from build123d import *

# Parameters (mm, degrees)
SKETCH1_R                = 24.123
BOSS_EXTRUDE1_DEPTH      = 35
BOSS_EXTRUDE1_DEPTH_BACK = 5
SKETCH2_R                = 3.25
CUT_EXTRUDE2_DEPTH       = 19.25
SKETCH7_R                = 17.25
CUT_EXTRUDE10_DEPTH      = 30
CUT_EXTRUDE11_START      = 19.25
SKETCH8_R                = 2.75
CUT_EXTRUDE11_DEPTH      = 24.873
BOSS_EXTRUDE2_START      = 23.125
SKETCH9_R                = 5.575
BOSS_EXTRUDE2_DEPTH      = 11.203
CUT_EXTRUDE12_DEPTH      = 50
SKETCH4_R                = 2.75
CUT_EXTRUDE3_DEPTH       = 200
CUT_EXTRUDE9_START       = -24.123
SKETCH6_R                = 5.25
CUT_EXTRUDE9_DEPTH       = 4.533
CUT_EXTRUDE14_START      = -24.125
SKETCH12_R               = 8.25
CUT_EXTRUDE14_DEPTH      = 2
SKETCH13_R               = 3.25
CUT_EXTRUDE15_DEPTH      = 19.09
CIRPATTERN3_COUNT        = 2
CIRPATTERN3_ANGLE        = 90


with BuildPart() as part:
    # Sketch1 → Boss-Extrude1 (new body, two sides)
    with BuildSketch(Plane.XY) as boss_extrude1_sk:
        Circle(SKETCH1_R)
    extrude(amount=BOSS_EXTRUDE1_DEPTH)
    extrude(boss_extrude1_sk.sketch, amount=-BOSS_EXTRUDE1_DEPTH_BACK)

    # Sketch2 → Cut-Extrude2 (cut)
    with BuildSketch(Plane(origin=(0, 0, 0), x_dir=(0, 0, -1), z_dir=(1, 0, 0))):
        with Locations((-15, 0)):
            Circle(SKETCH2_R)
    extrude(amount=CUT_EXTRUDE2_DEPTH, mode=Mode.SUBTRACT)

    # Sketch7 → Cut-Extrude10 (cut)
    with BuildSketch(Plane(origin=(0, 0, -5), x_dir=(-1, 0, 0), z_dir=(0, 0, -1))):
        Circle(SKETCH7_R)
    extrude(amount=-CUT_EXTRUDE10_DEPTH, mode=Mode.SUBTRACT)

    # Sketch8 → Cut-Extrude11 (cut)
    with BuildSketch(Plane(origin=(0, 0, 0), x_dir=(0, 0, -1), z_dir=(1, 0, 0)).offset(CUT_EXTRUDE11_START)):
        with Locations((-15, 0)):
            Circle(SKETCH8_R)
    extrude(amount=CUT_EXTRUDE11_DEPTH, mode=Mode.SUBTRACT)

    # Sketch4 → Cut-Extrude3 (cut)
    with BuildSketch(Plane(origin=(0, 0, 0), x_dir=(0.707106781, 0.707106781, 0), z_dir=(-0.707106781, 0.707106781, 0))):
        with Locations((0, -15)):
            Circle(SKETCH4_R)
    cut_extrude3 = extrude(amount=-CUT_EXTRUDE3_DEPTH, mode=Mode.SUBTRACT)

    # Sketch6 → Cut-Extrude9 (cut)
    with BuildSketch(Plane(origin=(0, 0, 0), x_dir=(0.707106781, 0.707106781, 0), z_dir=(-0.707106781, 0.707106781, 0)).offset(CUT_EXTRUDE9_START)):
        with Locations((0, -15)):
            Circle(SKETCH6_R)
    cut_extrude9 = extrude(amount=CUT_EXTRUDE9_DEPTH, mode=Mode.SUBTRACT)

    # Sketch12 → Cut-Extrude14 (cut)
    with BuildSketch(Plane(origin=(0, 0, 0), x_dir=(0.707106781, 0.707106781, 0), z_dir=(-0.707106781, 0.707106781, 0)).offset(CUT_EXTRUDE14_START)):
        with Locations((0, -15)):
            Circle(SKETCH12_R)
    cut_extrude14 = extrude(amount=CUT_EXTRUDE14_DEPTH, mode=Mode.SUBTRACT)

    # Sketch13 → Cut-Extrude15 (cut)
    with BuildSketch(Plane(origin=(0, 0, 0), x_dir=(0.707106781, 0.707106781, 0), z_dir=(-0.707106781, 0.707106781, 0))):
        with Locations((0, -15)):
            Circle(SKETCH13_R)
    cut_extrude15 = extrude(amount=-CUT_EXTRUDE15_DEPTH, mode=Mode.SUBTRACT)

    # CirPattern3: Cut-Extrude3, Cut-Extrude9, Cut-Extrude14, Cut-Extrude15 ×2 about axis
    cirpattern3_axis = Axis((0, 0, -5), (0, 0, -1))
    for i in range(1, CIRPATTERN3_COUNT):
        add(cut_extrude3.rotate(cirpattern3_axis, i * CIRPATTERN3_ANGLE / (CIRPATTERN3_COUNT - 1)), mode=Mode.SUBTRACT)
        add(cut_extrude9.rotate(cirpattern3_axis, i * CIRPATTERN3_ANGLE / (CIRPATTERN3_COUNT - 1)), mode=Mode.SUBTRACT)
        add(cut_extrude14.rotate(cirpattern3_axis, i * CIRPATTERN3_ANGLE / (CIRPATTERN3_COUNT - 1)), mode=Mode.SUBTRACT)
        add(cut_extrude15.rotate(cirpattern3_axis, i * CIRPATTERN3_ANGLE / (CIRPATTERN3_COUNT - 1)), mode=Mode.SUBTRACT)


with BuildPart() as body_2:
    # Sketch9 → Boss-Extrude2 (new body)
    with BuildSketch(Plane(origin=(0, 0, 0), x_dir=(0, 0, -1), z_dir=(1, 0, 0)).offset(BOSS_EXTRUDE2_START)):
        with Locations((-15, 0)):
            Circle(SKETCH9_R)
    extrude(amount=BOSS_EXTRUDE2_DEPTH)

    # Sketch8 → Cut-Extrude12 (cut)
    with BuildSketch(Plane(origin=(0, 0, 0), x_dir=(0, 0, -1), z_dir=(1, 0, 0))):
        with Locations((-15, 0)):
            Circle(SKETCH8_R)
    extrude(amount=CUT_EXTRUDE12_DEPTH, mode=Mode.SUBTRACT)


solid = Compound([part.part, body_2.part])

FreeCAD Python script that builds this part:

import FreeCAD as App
import Part
import Sketcher

V = App.Vector
Q = App.Units.Quantity

doc = App.newDocument("Part")
body = doc.addObject("PartDesign::Body", "Body")

# Sketch on XY plane
sketch1 = body.newObject("Sketcher::SketchObject", "Sketch")
sketch1.AttachmentSupport = (doc.getObject("XY_Plane"), [""])
sketch1.MapMode = "FlatFace"
sketch1.addGeometry(Part.Circle(V(0, 0, 0), V(0, 0, 1), 24.123), False)
sketch1.addConstraint([
    Sketcher.Constraint("Coincident", 0, 3, -1, 1),
    Sketcher.Constraint("Diameter", 0, Q("48.246 mm")),
])
pad1 = body.newObject("PartDesign::Pad", "Pad")
pad1.Profile = sketch1
pad1.Type = "TwoLengths"
pad1.Length = 35
pad1.Length2 = 5

# Sketch on YZ plane
sketch2 = body.newObject("Sketcher::SketchObject", "Sketch001")
sketch2.AttachmentSupport = (doc.getObject("YZ_Plane"), [""])
sketch2.MapMode = "FlatFace"
sketch2.addGeometry(Part.Circle(V(0, 15, 0), V(0, 0, 1), 3.25), False)
sketch2.addConstraint([
    Sketcher.Constraint("PointOnObject", 0, 3, -2),
    Sketcher.Constraint("Diameter", 0, Q("6.5 mm")),
    Sketcher.Constraint("DistanceY", -1, 1, 0, 3, Q("15 mm")),
])
pocket1 = body.newObject("PartDesign::Pocket", "Pocket")
pocket1.Profile = sketch2
pocket1.Length = 19.25
pocket1.Reversed = True

# Sketch on XY plane
sketch3 = body.newObject("Sketcher::SketchObject", "Sketch002")
sketch3.AttachmentSupport = (doc.getObject("XY_Plane"), [""])
sketch3.MapMode = "FlatFace"
sketch3.AttachmentOffset = App.Placement(V(0, 0, -5), App.Rotation())
sketch3.addGeometry(Part.Circle(V(0, 0, 0), V(0, 0, 1), 17.25), False)
sketch3.addConstraint([
    Sketcher.Constraint("Coincident", 0, 3, -1, 1),
    Sketcher.Constraint("Diameter", 0, Q("34.5 mm")),
])
pocket2 = body.newObject("PartDesign::Pocket", "Pocket001")
pocket2.Profile = sketch3
pocket2.Length = 30
pocket2.Reversed = True

# Sketch on YZ plane
sketch4 = body.newObject("Sketcher::SketchObject", "Sketch003")
sketch4.AttachmentSupport = (doc.getObject("YZ_Plane"), [""])
sketch4.MapMode = "FlatFace"
sketch4.AttachmentOffset = App.Placement(V(0, 0, 19.25), App.Rotation())
sketch4.addGeometry(Part.Circle(V(0, 15, 0), V(0, 0, 1), 2.75), False)
sketch4.addConstraint([
    Sketcher.Constraint("PointOnObject", 0, 3, -2),
    Sketcher.Constraint("Diameter", 0, Q("5.5 mm")),
    Sketcher.Constraint("DistanceY", -1, 1, 0, 3, Q("15 mm")),
])
pocket3 = body.newObject("PartDesign::Pocket", "Pocket002")
pocket3.Profile = sketch4
pocket3.Length = 24.873
pocket3.Reversed = True

# Sketch on an angled plane
sketch5 = body.newObject("Sketcher::SketchObject", "Sketch004")
sketch5.Placement = App.Placement(V(0, 0, 0), App.Rotation(V(0.707106781, 0.707106781, 0), V(0, 0, -0.999999999), V(-0.707106781, 0.707106781, 0), "ZXY"))
sketch5.addGeometry(Part.Circle(V(0, -15, 0), V(0, 0, 1), 2.75), False)
sketch5.addConstraint([
    Sketcher.Constraint("PointOnObject", 0, 3, -2),
    Sketcher.Constraint("Diameter", 0, Q("5.5 mm")),
    Sketcher.Constraint("DistanceY", 0, 3, -1, 1, Q("15 mm")),
])
pocket4 = body.newObject("PartDesign::Pocket", "Pocket003")
pocket4.Profile = sketch5
pocket4.Length = 200

# Sketch on an angled plane
sketch6 = body.newObject("Sketcher::SketchObject", "Sketch005")
sketch6.Placement = App.Placement(V(17.057537, -17.057537, 0), App.Rotation(V(0.707106781, 0.707106781, 0), V(0, 0, -0.999999999), V(-0.707106781, 0.707106781, 0), "ZXY"))
sketch6.addGeometry(Part.Circle(V(0, -15, 0), V(0, 0, 1), 5.25), False)
sketch6.addConstraint([
    Sketcher.Constraint("PointOnObject", 0, 3, -2),
    Sketcher.Constraint("Diameter", 0, Q("10.5 mm")),
    Sketcher.Constraint("DistanceY", 0, 3, -1, 1, Q("15 mm")),
])
pocket5 = body.newObject("PartDesign::Pocket", "Pocket004")
pocket5.Profile = sketch6
pocket5.Length = 4.533
pocket5.Reversed = True

# Sketch on an angled plane
sketch7 = body.newObject("Sketcher::SketchObject", "Sketch006")
sketch7.Placement = App.Placement(V(17.058951, -17.058951, 0), App.Rotation(V(0.707106781, 0.707106781, 0), V(0, 0, -0.999999999), V(-0.707106781, 0.707106781, 0), "ZXY"))
sketch7.addGeometry(Part.Circle(V(0, -15, 0), V(0, 0, 1), 8.25), False)
sketch7.addConstraint([
    Sketcher.Constraint("PointOnObject", 0, 3, -2),
    Sketcher.Constraint("Diameter", 0, Q("16.5 mm")),
    Sketcher.Constraint("DistanceY", 0, 3, -1, 1, Q("15 mm")),
])
pocket6 = body.newObject("PartDesign::Pocket", "Pocket005")
pocket6.Profile = sketch7
pocket6.Length = 2
pocket6.Reversed = True

# Sketch on an angled plane
sketch8 = body.newObject("Sketcher::SketchObject", "Sketch007")
sketch8.Placement = App.Placement(V(0, 0, 0), App.Rotation(V(0.707106781, 0.707106781, 0), V(0, 0, -0.999999999), V(-0.707106781, 0.707106781, 0), "ZXY"))
sketch8.addGeometry(Part.Circle(V(0, -15, 0), V(0, 0, 1), 3.25), False)
sketch8.addConstraint([
    Sketcher.Constraint("PointOnObject", 0, 3, -2),
    Sketcher.Constraint("Diameter", 0, Q("6.5 mm")),
    Sketcher.Constraint("DistanceY", 0, 3, -1, 1, Q("15 mm")),
])
pocket7 = body.newObject("PartDesign::Pocket", "Pocket006")
pocket7.Profile = sketch8
pocket7.Length = 19.09
doc.recompute()

polarpattern = body.newObject("PartDesign::PolarPattern", "PolarPattern")
polarpattern.Originals = [pocket4, pocket5, pocket6, pocket7]
polarpattern.Axis = (doc.getObject("Z_Axis"), [""])
polarpattern.Angle = 90
polarpattern.Occurrences = 2
polarpattern.Reversed = True
body.Tip = polarpattern
body2 = doc.addObject("PartDesign::Body", "Body001")

# Sketch on YZ plane
sketch9 = body2.newObject("Sketcher::SketchObject", "Sketch008")
sketch9.AttachmentSupport = (doc.getObject("YZ_Plane001"), [""])
sketch9.MapMode = "FlatFace"
sketch9.AttachmentOffset = App.Placement(V(0, 0, 23.125), App.Rotation())
sketch9.addGeometry(Part.Circle(V(0, 15, 0), V(0, 0, 1), 5.575), False)
sketch9.addConstraint([
    Sketcher.Constraint("PointOnObject", 0, 3, -2),
    Sketcher.Constraint("Diameter", 0, Q("11.15 mm")),
    Sketcher.Constraint("DistanceY", -1, 1, 0, 3, Q("15 mm")),
])
pad2 = body2.newObject("PartDesign::Pad", "Pad001")
pad2.Profile = sketch9
pad2.Length = 11.203

# Sketch on YZ plane
sketch10 = body2.newObject("Sketcher::SketchObject", "Sketch009")
sketch10.AttachmentSupport = (doc.getObject("YZ_Plane001"), [""])
sketch10.MapMode = "FlatFace"
sketch10.addGeometry(Part.Circle(V(0, 15, 0), V(0, 0, 1), 2.75), False)
sketch10.addConstraint([
    Sketcher.Constraint("PointOnObject", 0, 3, -2),
    Sketcher.Constraint("Diameter", 0, Q("5.5 mm")),
    Sketcher.Constraint("DistanceY", -1, 1, 0, 3, Q("15 mm")),
])
pocket8 = body2.newObject("PartDesign::Pocket", "Pocket007")
pocket8.Profile = sketch10
pocket8.Length = 50
pocket8.Reversed = True

doc.recompute()
